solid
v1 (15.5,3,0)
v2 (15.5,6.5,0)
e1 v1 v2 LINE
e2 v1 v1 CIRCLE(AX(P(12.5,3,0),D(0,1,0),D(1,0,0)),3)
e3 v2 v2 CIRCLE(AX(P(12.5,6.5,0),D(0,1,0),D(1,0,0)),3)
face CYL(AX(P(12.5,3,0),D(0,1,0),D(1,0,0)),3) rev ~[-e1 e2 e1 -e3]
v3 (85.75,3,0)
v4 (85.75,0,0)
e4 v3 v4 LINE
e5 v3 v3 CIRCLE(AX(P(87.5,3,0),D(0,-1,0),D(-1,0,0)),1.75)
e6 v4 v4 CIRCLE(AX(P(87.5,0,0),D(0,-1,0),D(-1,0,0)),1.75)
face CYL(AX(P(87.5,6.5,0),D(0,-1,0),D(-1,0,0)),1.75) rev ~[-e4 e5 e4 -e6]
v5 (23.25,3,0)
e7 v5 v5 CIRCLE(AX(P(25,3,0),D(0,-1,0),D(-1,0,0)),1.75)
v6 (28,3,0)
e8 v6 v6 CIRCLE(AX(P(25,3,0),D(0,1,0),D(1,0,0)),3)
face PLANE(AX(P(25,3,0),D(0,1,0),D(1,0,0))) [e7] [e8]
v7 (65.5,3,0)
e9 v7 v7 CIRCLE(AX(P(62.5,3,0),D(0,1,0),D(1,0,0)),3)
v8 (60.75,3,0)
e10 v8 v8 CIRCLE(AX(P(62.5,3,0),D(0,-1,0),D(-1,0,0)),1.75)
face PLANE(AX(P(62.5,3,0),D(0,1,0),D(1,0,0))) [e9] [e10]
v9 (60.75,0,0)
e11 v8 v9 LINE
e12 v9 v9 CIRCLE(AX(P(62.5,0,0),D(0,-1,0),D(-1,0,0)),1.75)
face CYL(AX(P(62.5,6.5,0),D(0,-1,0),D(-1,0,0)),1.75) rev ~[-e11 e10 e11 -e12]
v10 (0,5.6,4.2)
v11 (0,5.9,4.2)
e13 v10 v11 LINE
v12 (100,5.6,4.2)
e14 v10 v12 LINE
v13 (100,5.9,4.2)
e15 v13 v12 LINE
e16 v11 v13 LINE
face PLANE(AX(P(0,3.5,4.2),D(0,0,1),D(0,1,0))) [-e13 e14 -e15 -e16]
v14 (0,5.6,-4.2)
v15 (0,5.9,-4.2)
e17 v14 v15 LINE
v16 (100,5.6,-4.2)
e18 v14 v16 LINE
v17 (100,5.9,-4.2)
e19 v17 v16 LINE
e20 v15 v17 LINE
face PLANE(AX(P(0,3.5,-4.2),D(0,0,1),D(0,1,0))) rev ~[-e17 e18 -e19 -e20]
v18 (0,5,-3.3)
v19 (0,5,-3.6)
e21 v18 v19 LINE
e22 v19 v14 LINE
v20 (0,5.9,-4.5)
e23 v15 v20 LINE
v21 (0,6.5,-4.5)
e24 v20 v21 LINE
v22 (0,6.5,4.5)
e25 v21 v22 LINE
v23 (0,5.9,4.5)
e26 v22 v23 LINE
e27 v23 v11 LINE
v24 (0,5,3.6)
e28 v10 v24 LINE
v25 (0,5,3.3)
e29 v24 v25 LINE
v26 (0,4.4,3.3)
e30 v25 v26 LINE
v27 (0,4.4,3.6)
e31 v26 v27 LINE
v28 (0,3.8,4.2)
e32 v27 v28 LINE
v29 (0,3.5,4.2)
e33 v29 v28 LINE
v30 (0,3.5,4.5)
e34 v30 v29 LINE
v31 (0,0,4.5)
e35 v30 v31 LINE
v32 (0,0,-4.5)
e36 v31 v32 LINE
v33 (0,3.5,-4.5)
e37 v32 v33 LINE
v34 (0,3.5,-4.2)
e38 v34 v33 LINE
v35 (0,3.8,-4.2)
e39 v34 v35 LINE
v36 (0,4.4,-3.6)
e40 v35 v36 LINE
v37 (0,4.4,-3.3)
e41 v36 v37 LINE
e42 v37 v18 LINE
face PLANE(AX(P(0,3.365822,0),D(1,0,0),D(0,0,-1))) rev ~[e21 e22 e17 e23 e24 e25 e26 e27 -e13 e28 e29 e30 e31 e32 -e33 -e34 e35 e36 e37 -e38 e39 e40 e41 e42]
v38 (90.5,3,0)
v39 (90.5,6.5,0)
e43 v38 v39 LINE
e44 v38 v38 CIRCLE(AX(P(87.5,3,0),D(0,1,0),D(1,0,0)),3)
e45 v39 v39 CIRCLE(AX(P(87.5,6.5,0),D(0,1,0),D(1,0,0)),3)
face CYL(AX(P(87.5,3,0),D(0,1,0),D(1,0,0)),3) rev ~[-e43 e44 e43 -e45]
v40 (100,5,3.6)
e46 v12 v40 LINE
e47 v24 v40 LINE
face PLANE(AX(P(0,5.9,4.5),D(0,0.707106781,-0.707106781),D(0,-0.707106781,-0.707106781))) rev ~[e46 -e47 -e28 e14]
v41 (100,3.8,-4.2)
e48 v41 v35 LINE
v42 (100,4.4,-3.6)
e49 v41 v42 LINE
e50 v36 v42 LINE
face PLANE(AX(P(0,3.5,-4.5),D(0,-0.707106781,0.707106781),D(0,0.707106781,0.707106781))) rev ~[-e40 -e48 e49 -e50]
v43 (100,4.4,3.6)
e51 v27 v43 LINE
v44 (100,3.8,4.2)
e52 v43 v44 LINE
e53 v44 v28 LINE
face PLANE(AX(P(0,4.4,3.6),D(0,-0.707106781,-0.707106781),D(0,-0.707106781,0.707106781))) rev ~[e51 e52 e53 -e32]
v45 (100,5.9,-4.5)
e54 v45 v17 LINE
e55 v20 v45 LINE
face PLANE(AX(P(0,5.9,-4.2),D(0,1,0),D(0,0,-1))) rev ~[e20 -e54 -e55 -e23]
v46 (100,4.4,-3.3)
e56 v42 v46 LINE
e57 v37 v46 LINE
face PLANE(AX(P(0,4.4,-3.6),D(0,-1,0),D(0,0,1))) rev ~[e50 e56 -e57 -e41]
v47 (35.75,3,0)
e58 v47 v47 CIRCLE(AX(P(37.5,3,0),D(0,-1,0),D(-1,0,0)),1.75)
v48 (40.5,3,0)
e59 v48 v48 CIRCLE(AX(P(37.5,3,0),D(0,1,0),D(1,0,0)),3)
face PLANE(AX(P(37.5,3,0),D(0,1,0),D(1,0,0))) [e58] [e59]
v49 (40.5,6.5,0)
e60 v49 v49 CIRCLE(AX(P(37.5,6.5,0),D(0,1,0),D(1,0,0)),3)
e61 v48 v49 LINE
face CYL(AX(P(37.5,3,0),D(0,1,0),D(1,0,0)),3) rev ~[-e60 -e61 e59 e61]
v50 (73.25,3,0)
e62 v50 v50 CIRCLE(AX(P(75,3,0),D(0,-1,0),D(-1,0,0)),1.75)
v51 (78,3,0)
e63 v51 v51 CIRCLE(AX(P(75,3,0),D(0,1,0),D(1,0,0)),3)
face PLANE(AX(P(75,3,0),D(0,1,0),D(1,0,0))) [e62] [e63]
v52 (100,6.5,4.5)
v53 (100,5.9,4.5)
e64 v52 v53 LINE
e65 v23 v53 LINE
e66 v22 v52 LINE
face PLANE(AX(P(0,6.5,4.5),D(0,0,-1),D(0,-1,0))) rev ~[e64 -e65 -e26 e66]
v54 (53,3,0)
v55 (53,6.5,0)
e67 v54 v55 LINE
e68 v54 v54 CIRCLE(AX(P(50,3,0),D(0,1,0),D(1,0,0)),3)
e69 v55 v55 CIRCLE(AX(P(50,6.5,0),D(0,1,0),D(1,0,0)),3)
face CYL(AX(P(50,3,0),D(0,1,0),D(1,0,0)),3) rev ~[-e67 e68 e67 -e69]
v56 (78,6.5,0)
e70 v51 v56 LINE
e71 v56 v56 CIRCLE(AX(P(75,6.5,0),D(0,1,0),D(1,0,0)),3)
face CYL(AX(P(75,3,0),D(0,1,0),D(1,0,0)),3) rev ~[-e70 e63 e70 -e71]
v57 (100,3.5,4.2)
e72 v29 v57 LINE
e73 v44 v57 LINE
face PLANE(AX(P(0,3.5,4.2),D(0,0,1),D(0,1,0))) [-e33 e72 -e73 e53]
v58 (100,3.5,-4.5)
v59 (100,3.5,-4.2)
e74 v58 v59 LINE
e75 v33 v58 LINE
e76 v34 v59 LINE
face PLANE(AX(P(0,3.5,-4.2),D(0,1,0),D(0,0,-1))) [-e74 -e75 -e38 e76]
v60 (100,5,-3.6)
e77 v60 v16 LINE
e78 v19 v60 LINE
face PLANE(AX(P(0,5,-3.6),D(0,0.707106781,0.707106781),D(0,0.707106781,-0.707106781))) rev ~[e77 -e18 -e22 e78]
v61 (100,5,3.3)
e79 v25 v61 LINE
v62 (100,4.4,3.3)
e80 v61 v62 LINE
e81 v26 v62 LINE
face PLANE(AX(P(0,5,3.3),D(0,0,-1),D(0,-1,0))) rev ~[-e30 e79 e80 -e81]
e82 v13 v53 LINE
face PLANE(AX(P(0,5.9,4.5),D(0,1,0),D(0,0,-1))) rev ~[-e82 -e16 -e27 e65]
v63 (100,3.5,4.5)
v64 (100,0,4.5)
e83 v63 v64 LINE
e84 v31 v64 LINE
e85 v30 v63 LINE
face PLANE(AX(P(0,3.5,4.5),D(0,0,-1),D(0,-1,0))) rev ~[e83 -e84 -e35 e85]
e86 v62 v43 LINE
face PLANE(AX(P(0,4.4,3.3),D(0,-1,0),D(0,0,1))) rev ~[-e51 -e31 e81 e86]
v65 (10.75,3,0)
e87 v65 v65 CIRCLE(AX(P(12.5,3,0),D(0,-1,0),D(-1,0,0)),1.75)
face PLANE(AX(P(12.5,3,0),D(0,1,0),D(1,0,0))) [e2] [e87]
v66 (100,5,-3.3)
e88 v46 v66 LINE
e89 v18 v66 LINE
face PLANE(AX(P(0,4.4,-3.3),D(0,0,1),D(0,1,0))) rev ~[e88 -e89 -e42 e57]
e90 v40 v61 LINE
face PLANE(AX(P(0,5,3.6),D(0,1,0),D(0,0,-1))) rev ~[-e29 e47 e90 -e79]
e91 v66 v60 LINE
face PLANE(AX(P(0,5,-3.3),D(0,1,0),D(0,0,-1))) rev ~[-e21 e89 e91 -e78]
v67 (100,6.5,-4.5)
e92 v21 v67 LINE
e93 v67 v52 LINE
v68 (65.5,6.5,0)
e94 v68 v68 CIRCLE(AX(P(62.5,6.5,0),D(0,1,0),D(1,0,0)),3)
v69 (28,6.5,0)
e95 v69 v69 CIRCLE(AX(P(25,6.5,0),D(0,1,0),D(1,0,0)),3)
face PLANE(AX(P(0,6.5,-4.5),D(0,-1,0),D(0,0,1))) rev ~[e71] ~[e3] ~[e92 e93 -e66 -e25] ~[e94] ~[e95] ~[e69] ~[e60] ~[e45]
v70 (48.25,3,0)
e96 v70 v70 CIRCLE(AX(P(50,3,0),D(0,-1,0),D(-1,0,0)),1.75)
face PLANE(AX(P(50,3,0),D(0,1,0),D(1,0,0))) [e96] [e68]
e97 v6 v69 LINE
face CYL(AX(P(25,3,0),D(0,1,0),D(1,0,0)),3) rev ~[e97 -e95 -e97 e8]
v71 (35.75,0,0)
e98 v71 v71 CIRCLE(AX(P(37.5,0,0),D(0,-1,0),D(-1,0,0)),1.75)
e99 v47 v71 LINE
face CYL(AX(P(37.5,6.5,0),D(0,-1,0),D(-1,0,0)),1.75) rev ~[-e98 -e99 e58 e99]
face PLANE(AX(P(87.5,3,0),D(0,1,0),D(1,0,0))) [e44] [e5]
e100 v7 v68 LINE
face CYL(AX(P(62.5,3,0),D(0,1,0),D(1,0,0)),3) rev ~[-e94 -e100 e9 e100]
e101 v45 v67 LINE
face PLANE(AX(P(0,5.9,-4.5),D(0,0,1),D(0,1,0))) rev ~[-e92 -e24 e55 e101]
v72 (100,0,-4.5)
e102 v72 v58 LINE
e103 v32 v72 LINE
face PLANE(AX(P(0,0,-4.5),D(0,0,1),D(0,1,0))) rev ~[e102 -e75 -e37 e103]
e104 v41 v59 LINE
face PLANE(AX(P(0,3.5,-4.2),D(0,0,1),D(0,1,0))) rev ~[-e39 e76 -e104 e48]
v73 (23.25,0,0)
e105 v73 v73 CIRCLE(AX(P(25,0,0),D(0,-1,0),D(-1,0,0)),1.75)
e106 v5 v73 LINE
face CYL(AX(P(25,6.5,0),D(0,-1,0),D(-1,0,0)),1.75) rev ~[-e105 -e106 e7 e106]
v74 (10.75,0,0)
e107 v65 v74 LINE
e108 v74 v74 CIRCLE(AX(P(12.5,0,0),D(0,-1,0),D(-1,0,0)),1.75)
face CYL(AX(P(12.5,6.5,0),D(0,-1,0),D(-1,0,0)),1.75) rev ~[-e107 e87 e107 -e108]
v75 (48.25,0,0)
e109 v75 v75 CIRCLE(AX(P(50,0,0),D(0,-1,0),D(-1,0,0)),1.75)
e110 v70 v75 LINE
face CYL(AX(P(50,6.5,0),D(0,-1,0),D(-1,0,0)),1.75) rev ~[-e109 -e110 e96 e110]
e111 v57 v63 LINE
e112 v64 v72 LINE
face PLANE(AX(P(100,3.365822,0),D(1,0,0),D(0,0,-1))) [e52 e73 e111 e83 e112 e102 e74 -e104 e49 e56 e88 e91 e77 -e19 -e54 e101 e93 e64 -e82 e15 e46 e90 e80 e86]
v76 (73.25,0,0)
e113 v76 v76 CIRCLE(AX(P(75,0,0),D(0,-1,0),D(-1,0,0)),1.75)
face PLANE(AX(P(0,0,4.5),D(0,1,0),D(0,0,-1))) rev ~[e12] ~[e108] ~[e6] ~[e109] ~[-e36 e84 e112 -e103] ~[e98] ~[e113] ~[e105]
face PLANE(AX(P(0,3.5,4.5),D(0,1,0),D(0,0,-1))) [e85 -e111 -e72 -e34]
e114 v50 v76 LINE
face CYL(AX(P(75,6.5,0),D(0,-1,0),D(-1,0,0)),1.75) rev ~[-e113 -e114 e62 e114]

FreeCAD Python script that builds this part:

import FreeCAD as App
import Part
import Sketcher
from FreeCAD import Vector
Q = App.Units.Quantity

doc = App.newDocument("Part")
body = doc.addObject("PartDesign::Body", "Body")

# Sketch on YZ plane
sketch1 = body.newObject("Sketcher::SketchObject", "Sketch")
sketch1.AttachmentSupport = (doc.getObject("YZ_Plane"), [""])
sketch1.MapMode = "FlatFace"
sketch1.addGeometry([
    Part.LineSegment(Vector(0, 4.5, 0), Vector(0, -4.5, 0)),  # 0
    Part.LineSegment(Vector(0, -4.5, 0), Vector(3.5, -4.5, 0)),  # 1
    Part.LineSegment(Vector(3.5, -4.5, 0), Vector(4.4, -3.6, 0)),  # 2
    Part.LineSegment(Vector(4.4, -3.6, 0), Vector(4.4, -3.3, 0)),  # 3
    Part.LineSegment(Vector(4.4, -3.3, 0), Vector(5, -3.3, 0)),  # 4
    Part.LineSegment(Vector(5, -3.3, 0), Vector(5, -3.6, 0)),  # 5
    Part.LineSegment(Vector(5, -3.6, 0), Vector(5.9, -4.5, 0)),  # 6
    Part.LineSegment(Vector(5.9, -4.5, 0), Vector(6.5, -4.5, 0)),  # 7
    Part.LineSegment(Vector(6.5, -4.5, 0), Vector(6.5, 4.5, 0)),  # 8
    Part.LineSegment(Vector(6.5, 4.5, 0), Vector(5.9, 4.5, 0)),  # 9
    Part.LineSegment(Vector(5.9, 4.5, 0), Vector(5, 3.6, 0)),  # 10
    Part.LineSegment(Vector(5, 3.6, 0), Vector(5, 3.3, 0)),  # 11
    Part.LineSegment(Vector(5, 3.3, 0), Vector(4.4, 3.3, 0)),  # 12
    Part.LineSegment(Vector(4.4, 3.3, 0), Vector(4.4, 3.6, 0)),  # 13
    Part.LineSegment(Vector(4.4, 3.6, 0), Vector(3.5, 4.5, 0)),  # 14
    Part.LineSegment(Vector(3.5, 4.5, 0), Vector(0, 4.5, 0)),  # 15
], False)
sketch1.addConstraint([
    Sketcher.Constraint("Coincident", 0, 2, 1, 1),
    Sketcher.Constraint("Coincident", 1, 2, 2, 1),
    Sketcher.Constraint("Coincident", 2, 2, 3, 1),
    Sketcher.Constraint("Coincident", 3, 2, 4, 1),
    Sketcher.Constraint("Coincident", 4, 2, 5, 1),
    Sketcher.Constraint("Coincident", 5, 2, 6, 1),
    Sketcher.Constraint("Coincident", 6, 2, 7, 1),
    Sketcher.Constraint("Coincident", 7, 2, 8, 1),
    Sketcher.Constraint("Coincident", 8, 2, 9, 1),
    Sketcher.Constraint("Coincident", 9, 2, 10, 1),
    Sketcher.Constraint("Coincident", 10, 2, 11, 1),
    Sketcher.Constraint("Coincident", 11, 2, 12, 1),
    Sketcher.Constraint("Coincident", 12, 2, 13, 1),
    Sketcher.Constraint("Coincident", 13, 2, 14, 1),
    Sketcher.Constraint("Coincident", 14, 2, 15, 1),
    Sketcher.Constraint("Coincident", 15, 2, 0, 1),
    Sketcher.Constraint("Vertical", 0),
    Sketcher.Constraint("Horizontal", 1),
    Sketcher.Constraint("Vertical", 3),
    Sketcher.Constraint("Horizontal", 4),
    Sketcher.Constraint("Vertical", 5),
    Sketcher.Constraint("Horizontal", 7),
    Sketcher.Constraint("Vertical", 8),
    Sketcher.Constraint("Horizontal", 9),
    Sketcher.Constraint("Vertical", 11),
    Sketcher.Constraint("Horizontal", 12),
    Sketcher.Constraint("Vertical", 13),
    Sketcher.Constraint("Horizontal", 15),
    Sketcher.Constraint("Symmetric", 0, 2, 15, 2, -1, 1),
    Sketcher.Constraint("Symmetric", 6, 2, 9, 2, -1),
    Sketcher.Constraint("Symmetric", 5, 2, 10, 2, -1),
    Sketcher.Constraint("Symmetric", 3, 2, 12, 2, -1),
    Sketcher.Constraint("Perpendicular", 2, 6),
    Sketcher.Constraint("Perpendicular", 6, 10),
    Sketcher.Constraint("Perpendicular", 10, 14),
    Sketcher.Constraint("Horizontal", 2, 2, 5, 2),
    Sketcher.Constraint("Horizontal", 1, 2, 6, 2),
    Sketcher.Constraint("Horizontal", 10, 2, 13, 2),
    Sketcher.Constraint("Equal", 4, 7),
    Sketcher.Constraint("DistanceY", 0, 2, 0, 1, Q("9 mm")),
    Sketcher.Constraint("DistanceX", 1, 1, 1, 2, Q("3.5 mm")),
    Sketcher.Constraint("DistanceX", 4, 1, 4, 2, Q("0.6 mm")),
    Sketcher.Constraint("DistanceY", 3, 1, 3, 2, Q("0.3 mm")),
    Sketcher.Constraint("DistanceX", -1, 1, 4, 2, Q("5 mm")),
])
pad1 = body.newObject("PartDesign::Pad", "Pad")
pad1.Profile = sketch1
pad1.Length = 100

# Sketch on YZ plane
sketch2 = body.newObject("Sketcher::SketchObject", "Sketch001")
sketch2.AttachmentSupport = (doc.getObject("YZ_Plane"), [""])
sketch2.MapMode = "FlatFace"
sketch2.addGeometry([
    Part.LineSegment(Vector(5.9, -4.2, 0), Vector(3.5, -4.2, 0)),  # 0
    Part.LineSegment(Vector(3.5, -4.2, 0), Vector(3.5, -4.5, 0)),  # 1
    Part.LineSegment(Vector(3.5, -4.5, 0), Vector(5.9, -4.5, 0)),  # 2
    Part.LineSegment(Vector(5.9, -4.5, 0), Vector(5.9, -4.2, 0)),  # 3
    Part.LineSegment(Vector(5.9, 4.5, 0), Vector(3.5, 4.5, 0)),  # 4
    Part.LineSegment(Vector(3.5, 4.5, 0), Vector(3.5, 4.2, 0)),  # 5
    Part.LineSegment(Vector(3.5, 4.2, 0), Vector(5.9, 4.2, 0)),  # 6
    Part.LineSegment(Vector(5.9, 4.2, 0), Vector(5.9, 4.5, 0)),  # 7
], False)
sketch2.addConstraint([
    Sketcher.Constraint("Coincident", 0, 2, 1, 1),
    Sketcher.Constraint("Coincident", 1, 2, 2, 1),
    Sketcher.Constraint("Coincident", 2, 2, 3, 1),
    Sketcher.Constraint("Coincident", 3, 2, 0, 1),
    Sketcher.Constraint("Coincident", 4, 2, 5, 1),
    Sketcher.Constraint("Coincident", 5, 2, 6, 1),
    Sketcher.Constraint("Coincident", 6, 2, 7, 1),
    Sketcher.Constraint("Coincident", 7, 2, 4, 1),
    Sketcher.Constraint("Horizontal", 0),
    Sketcher.Constraint("Vertical", 1),
    Sketcher.Constraint("Horizontal", 2),
    Sketcher.Constraint("Vertical", 3),
    Sketcher.Constraint("Horizontal", 4),
    Sketcher.Constraint("Vertical", 5),
    Sketcher.Constraint("Horizontal", 6),
    Sketcher.Constraint("Vertical", 7),
    Sketcher.Constraint("Symmetric", 1, 2, 4, 2, -1),
    Sketcher.Constraint("Symmetric", 3, 2, 6, 2, -1),
    Sketcher.Constraint("DistanceX", 0, 2, 0, 1, Q("2.4 mm")),
    Sketcher.Constraint("DistanceY", 1, 2, 1, 1, Q("0.3 mm")),
    Sketcher.Constraint("DistanceY", 1, 2, 4, 2, Q("9 mm")),
    Sketcher.Constraint("DistanceX", -1, 1, 0, 2, Q("3.5 mm")),
])
pocket1 = body.newObject("PartDesign::Pocket", "Pocket")
pocket1.Profile = sketch2
pocket1.Type = "ThroughAll"
pocket1.Reversed = True

# Sketch on XZ plane
sketch3 = body.newObject("Sketcher::SketchObject", "Sketch002")
sketch3.AttachmentSupport = (doc.getObject("XZ_Plane"), [""])
sketch3.MapMode = "FlatFace"
sketch3.AttachmentOffset = App.Placement(Vector(0, 0, -6.5), App.Rotation())
sketch3.addGeometry(Part.Circle(Vector(12.5, 0, 0), Vector(0, 0, 1), 1.8), False)
sketch3.addConstraint([
    Sketcher.Constraint("PointOnObject", 0, 3, -1),
    Sketcher.Constraint("Diameter", 0, Q("3.5 mm")),
    Sketcher.Constraint("DistanceX", -1, 1, 0, 3, Q("12.5 mm")),
])
doc.recompute()
hole = body.newObject("PartDesign::Hole", "Hole")
hole.Profile = sketch3
hole.ThreadType = "None"
hole.Diameter = 3.5
hole.DepthType = "ThroughAll"
hole.HoleCutType = "Counterbore"
hole.HoleCutDiameter = 6
hole.HoleCutDepth = 3.5
hole.Reversed = True
doc.recompute()

linearpattern = body.newObject("PartDesign::LinearPattern", "LinearPattern")
linearpattern.Originals = [hole]
linearpattern.Direction = (doc.getObject("X_Axis"), [""])
linearpattern.Mode = "offset"
linearpattern.Offset = 12.5
linearpattern.Occurrences = 7
body.Tip = linearpattern

doc.recompute()
